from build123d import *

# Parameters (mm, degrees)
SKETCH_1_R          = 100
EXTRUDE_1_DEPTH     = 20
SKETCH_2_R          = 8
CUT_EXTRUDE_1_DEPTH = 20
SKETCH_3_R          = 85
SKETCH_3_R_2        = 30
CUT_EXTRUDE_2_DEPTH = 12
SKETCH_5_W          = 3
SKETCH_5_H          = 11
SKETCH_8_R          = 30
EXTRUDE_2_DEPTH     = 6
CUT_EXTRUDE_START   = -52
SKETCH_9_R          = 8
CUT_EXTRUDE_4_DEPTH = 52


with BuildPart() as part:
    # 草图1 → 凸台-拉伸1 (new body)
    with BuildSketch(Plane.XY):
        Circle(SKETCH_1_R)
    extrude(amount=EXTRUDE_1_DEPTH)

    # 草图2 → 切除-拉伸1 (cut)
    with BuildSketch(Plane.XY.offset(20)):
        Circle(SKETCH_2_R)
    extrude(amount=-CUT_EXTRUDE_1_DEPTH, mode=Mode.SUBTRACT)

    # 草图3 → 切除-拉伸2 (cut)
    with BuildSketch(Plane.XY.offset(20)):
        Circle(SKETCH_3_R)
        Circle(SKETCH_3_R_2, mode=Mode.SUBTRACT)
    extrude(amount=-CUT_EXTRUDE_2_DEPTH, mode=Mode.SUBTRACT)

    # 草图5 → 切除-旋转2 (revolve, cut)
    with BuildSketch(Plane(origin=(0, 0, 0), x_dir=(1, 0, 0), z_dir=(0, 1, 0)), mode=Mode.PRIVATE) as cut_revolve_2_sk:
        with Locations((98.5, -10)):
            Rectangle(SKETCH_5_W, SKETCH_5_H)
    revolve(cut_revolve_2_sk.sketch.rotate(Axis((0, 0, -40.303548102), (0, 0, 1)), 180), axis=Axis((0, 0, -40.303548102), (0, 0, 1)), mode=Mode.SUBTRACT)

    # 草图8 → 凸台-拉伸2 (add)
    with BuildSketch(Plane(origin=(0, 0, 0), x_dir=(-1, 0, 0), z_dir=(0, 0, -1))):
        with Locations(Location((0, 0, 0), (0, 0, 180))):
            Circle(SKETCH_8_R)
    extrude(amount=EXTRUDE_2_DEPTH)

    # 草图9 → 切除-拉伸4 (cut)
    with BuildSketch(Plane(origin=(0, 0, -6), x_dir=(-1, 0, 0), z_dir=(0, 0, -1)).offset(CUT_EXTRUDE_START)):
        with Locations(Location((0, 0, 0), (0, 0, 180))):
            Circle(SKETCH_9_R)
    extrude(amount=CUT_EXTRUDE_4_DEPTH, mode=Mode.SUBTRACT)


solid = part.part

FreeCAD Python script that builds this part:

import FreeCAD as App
import Part
import Sketcher


def add_polygon(sketch, points):
    """Adds a closed chain of lines whose ends are joined by coincident constraints."""
    first, n = sketch.GeometryCount, len(points)
    for a, b in zip(points, points[1:] + points[:1]):
        sketch.addGeometry(Part.LineSegment(App.Vector(*a, 0), App.Vector(*b, 0)), False)
    for i in range(n):
        sketch.addConstraint(Sketcher.Constraint("Coincident", first + i, 2, first + (i + 1) % n, 1))

doc = App.newDocument("Part")
body = doc.addObject("PartDesign::Body", "Body")

sketch1 = body.newObject("Sketcher::SketchObject", "Sketch")
sketch1.AttachmentSupport = (doc.getObject("XY_Plane"), [""])
sketch1.MapMode = "FlatFace"
sketch1.addGeometry(Part.Circle(App.Vector(0, 0, 0), App.Vector(0, 0, 1), 100), False)
sketch1.addConstraint([
    Sketcher.Constraint("Coincident", 0, 3, -1, 1),
    Sketcher.Constraint("Diameter", 0, 200.0),
])
pad1 = body.newObject("PartDesign::Pad", "Pad")
pad1.Profile = sketch1
pad1.Length = 20

sketch2 = body.newObject("Sketcher::SketchObject", "Sketch001")
sketch2.AttachmentSupport = (doc.getObject("XY_Plane"), [""])
sketch2.MapMode = "FlatFace"
sketch2.AttachmentOffset = App.Placement(App.Vector(0, 0, 20), App.Rotation())
sketch2.addGeometry(Part.Circle(App.Vector(0, 0, 0), App.Vector(0, 0, 1), 8), False)
sketch2.addConstraint([
    Sketcher.Constraint("Coincident", 0, 3, -1, 1),
    Sketcher.Constraint("Diameter", 0, 16.0),
])
pocket1 = body.newObject("PartDesign::Pocket", "Pocket")
pocket1.Profile = sketch2
pocket1.Length = 20

sketch3 = body.newObject("Sketcher::SketchObject", "Sketch002")
sketch3.AttachmentSupport = (doc.getObject("XY_Plane"), [""])
sketch3.MapMode = "FlatFace"
sketch3.AttachmentOffset = App.Placement(App.Vector(0, 0, 20), App.Rotation())
sketch3.addGeometry([
    Part.Circle(App.Vector(0, 0, 0), App.Vector(0, 0, 1), 85),
    Part.Circle(App.Vector(0, 0, 0), App.Vector(0, 0, 1), 30),
], False)
sketch3.addConstraint([
    Sketcher.Constraint("Coincident", 0, 3, -1, 1),
    Sketcher.Constraint("Coincident", 1, 3, -1, 1),
    Sketcher.Constraint("Diameter", 0, 170.0),
    Sketcher.Constraint("Diameter", 1, 60.0),
])
pocket2 = body.newObject("PartDesign::Pocket", "Pocket001")
pocket2.Profile = sketch3
pocket2.Length = 12

sketch4 = body.newObject("Sketcher::SketchObject", "Sketch003")
sketch4.AttachmentSupport = (doc.getObject("XZ_Plane"), [""])
sketch4.MapMode = "FlatFace"
add_polygon(sketch4, [(97, 4.5), (97, 15.5), (100, 15.5), (100, 4.5)])
sketch4.addConstraint([
    Sketcher.Constraint("Vertical", 0),
    Sketcher.Constraint("Horizontal", 1),
    Sketcher.Constraint("Vertical", 2),
    Sketcher.Constraint("Horizontal", 3),
    Sketcher.Constraint("DistanceX", 1, 1, 1, 2, 3.0),
    Sketcher.Constraint("DistanceY", 0, 1, 0, 2, 11.0),
    Sketcher.Constraint("DistanceX", -1, 1, 0, 2, 97.0),
    Sketcher.Constraint("DistanceY", -1, 1, 0, 2, 15.5),
])
groove = body.newObject("PartDesign::Groove", "Groove")
groove.Profile = sketch4
groove.ReferenceAxis = (sketch4, ["V_Axis"])
groove.Angle = 360

sketch5 = body.newObject("Sketcher::SketchObject", "Sketch004")
sketch5.AttachmentSupport = (doc.getObject("XY_Plane"), [""])
sketch5.MapMode = "FlatFace"
sketch5.addGeometry(Part.Circle(App.Vector(0, 0, 0), App.Vector(0, 0, 1), 30), False)
sketch5.addConstraint([
    Sketcher.Constraint("Coincident", 0, 3, -1, 1),
    Sketcher.Constraint("Diameter", 0, 60.0),
])
pad2 = body.newObject("PartDesign::Pad", "Pad001")
pad2.Profile = sketch5
pad2.Length = 6
pad2.Reversed = True

sketch6 = body.newObject("Sketcher::SketchObject", "Sketch005")
sketch6.AttachmentSupport = (doc.getObject("XY_Plane"), [""])
sketch6.MapMode = "FlatFace"
sketch6.AttachmentOffset = App.Placement(App.Vector(0, 0, 46), App.Rotation())
sketch6.addGeometry(Part.Circle(App.Vector(0, 0, 0), App.Vector(0, 0, 1), 8), False)
sketch6.addConstraint([
    Sketcher.Constraint("Coincident", 0, 3, -1, 1),
    Sketcher.Constraint("Diameter", 0, 16.0),
])
pocket3 = body.newObject("PartDesign::Pocket", "Pocket002")
pocket3.Profile = sketch6
pocket3.Length = 52

doc.recompute()
